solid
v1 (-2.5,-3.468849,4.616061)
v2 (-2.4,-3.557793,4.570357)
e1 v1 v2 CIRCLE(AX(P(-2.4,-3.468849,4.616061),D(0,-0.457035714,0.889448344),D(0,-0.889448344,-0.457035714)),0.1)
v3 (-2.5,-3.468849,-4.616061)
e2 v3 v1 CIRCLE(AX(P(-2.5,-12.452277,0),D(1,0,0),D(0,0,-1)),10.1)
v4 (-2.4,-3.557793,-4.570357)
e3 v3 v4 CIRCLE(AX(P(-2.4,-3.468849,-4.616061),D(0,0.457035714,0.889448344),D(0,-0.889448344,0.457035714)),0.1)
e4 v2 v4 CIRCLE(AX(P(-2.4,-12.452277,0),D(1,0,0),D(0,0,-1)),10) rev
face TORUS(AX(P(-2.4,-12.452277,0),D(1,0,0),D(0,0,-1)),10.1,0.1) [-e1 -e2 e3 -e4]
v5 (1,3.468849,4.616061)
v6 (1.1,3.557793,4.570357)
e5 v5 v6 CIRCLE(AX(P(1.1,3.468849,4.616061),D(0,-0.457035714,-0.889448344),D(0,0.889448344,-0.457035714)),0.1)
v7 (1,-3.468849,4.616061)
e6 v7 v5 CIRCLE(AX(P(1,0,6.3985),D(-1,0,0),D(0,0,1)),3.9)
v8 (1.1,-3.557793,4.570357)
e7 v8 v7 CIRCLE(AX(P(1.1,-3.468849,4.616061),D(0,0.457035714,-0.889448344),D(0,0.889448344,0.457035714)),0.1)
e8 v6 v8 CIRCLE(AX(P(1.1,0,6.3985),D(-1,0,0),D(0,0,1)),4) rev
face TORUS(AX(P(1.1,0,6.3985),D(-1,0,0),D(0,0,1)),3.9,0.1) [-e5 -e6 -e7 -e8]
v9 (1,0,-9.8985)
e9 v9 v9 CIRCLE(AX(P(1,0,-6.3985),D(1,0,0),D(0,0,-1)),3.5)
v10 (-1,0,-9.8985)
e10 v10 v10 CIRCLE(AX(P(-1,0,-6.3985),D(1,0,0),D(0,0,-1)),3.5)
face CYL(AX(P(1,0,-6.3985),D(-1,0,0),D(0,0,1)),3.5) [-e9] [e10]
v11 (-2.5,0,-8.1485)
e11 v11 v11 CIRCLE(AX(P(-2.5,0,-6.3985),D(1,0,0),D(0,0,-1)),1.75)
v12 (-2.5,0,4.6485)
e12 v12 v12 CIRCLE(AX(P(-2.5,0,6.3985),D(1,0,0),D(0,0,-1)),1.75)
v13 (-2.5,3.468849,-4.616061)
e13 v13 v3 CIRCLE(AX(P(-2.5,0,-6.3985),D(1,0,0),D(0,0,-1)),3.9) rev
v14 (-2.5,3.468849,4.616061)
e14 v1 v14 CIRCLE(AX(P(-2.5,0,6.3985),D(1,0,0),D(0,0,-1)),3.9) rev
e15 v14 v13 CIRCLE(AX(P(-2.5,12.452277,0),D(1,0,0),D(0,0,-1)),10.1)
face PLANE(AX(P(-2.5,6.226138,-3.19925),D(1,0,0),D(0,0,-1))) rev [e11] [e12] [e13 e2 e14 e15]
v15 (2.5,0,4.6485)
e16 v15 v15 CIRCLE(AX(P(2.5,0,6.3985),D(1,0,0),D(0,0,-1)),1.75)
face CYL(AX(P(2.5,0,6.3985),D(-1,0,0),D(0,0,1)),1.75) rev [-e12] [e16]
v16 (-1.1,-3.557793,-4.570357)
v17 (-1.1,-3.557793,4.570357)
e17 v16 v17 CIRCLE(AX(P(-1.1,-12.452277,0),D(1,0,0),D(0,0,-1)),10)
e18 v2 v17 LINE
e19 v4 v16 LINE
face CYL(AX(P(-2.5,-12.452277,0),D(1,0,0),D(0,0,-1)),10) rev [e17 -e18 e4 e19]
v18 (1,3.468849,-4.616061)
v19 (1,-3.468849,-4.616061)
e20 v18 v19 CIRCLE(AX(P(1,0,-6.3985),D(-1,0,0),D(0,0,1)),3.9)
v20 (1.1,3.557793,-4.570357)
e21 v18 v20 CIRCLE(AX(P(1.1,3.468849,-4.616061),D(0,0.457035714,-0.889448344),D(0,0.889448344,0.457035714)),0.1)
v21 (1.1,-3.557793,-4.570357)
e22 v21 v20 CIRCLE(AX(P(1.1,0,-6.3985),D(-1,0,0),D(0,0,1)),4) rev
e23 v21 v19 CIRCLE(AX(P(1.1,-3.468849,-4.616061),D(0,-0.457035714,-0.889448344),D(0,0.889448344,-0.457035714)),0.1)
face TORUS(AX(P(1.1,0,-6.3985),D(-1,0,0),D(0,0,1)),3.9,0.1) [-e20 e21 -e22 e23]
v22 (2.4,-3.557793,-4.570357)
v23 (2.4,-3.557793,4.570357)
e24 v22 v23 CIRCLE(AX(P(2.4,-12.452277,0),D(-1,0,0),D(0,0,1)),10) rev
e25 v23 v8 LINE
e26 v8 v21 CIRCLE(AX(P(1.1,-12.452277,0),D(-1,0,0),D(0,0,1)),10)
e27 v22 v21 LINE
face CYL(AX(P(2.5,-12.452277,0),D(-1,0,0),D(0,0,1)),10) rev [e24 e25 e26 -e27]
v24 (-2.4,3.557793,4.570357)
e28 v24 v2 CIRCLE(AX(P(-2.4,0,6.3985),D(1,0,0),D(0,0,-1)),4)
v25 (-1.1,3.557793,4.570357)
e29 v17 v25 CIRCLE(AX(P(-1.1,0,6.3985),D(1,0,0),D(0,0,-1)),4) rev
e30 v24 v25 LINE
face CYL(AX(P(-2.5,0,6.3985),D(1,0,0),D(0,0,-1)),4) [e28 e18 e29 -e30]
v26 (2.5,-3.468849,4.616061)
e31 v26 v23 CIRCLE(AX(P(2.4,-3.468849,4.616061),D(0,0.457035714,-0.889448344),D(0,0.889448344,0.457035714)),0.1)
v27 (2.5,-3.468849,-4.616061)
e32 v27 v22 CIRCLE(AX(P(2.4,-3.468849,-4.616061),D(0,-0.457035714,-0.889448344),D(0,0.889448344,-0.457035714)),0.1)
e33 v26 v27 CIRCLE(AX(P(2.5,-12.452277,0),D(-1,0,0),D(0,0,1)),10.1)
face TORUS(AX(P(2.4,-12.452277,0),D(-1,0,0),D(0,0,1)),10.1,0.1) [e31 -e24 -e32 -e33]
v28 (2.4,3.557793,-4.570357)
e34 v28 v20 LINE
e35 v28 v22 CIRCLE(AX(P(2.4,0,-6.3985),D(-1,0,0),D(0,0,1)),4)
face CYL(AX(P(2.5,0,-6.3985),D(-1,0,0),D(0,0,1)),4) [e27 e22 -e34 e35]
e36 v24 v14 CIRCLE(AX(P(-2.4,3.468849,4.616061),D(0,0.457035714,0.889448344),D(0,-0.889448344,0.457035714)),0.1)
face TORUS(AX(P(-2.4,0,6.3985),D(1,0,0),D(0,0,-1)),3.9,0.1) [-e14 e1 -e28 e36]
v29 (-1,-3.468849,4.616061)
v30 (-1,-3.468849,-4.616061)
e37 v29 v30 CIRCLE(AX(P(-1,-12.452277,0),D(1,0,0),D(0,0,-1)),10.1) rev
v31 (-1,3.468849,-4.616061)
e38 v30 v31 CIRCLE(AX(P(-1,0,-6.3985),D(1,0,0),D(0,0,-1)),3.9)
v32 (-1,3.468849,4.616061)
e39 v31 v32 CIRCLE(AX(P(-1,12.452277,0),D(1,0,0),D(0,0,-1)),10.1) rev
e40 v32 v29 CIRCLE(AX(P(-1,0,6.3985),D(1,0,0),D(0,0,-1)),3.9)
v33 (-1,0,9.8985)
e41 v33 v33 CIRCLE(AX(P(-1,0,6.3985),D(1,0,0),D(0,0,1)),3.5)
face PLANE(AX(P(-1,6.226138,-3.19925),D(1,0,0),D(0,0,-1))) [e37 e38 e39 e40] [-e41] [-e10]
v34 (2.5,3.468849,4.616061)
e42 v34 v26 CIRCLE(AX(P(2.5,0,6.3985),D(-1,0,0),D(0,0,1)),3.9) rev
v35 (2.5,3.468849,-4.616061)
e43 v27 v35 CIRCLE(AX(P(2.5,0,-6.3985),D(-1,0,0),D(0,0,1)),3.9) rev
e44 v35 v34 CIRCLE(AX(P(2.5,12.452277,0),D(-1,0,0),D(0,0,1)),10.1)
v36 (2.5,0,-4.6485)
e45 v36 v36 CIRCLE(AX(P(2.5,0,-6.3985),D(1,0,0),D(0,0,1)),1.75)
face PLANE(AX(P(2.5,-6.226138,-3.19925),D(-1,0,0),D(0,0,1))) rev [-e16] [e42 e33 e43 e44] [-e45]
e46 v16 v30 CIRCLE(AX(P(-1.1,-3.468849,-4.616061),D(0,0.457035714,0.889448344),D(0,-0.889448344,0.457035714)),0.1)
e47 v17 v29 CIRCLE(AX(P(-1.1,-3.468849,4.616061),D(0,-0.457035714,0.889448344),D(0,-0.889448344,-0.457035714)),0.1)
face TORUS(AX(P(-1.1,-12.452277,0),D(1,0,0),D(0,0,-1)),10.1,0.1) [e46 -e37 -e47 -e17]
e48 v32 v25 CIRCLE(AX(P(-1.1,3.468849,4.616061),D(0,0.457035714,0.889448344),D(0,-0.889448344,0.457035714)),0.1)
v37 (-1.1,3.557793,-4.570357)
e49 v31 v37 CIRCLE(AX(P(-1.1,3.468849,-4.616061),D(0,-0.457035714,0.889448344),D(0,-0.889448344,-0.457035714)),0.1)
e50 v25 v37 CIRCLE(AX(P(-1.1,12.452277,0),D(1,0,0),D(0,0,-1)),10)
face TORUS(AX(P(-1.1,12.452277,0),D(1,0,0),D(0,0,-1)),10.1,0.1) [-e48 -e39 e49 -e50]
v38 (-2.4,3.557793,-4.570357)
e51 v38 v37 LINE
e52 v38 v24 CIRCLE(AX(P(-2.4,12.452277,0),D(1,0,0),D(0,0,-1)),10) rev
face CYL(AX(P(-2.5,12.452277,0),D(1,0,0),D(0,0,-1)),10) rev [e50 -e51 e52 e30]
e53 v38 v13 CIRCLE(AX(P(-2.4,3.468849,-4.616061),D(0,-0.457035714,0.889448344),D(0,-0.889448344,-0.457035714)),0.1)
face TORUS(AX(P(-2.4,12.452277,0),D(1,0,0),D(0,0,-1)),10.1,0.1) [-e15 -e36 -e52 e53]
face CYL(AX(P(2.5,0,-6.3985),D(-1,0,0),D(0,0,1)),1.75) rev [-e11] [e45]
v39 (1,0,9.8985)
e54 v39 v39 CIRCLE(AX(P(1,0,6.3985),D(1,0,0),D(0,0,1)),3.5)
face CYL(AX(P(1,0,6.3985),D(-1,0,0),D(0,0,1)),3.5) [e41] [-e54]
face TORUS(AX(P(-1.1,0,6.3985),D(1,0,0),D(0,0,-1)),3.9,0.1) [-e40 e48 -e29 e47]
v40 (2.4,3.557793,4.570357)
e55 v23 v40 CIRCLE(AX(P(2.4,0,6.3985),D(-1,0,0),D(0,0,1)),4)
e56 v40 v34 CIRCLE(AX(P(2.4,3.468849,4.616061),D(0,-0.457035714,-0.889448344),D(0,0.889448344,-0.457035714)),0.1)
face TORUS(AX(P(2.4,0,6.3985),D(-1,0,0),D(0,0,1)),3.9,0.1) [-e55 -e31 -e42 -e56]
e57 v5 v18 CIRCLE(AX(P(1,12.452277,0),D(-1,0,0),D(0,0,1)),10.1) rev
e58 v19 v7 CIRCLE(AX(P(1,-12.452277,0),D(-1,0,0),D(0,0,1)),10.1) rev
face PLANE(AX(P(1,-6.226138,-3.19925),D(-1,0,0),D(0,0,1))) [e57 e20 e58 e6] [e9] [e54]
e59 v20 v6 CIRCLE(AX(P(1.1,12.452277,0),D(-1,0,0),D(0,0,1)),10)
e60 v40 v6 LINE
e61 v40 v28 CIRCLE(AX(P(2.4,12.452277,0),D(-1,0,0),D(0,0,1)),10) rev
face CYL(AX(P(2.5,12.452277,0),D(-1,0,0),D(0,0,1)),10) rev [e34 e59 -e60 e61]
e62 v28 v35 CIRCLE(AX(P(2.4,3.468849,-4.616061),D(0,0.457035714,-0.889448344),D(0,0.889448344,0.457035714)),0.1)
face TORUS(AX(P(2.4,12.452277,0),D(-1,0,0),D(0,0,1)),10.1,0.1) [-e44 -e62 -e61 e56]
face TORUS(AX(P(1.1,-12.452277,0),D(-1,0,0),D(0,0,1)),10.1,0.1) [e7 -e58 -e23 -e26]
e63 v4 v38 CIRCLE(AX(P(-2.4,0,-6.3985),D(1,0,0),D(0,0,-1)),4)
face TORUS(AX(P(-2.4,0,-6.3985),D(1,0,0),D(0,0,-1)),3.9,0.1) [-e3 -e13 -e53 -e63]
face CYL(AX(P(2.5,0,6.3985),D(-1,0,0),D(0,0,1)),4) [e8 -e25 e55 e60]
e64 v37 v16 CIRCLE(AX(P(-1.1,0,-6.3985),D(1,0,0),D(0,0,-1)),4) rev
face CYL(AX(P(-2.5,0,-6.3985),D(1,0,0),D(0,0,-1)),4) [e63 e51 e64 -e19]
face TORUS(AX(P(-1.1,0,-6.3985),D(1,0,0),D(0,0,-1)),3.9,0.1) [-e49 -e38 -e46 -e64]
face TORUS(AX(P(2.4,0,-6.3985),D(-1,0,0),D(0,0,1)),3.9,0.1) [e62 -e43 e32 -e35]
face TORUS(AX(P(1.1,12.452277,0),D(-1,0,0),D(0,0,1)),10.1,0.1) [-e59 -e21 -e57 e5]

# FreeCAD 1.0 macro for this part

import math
import FreeCAD as App
import Part
import Sketcher
Q = App.Units.Quantity


def edges_at(feature, points):
    """Names of the edges that pass closest to the given points."""
    edges = feature.Shape.Edges
    near = lambda p: min(range(len(edges)), key=lambda i: edges[i].distToShape(Part.Vertex(*p))[0])
    return sorted({f"Edge{near(p) + 1}" for p in points})

doc = App.newDocument("Part")
body = doc.addObject("PartDesign::Body", "Body")

# Sketch on YZ plane
sketch1 = body.newObject("Sketcher::SketchObject", "Sketch")
sketch1.AttachmentSupport = (doc.getObject("YZ_Plane"), [""])
sketch1.MapMode = "FlatFace"
sketch1.AttachmentOffset = App.Placement(App.Vector(0, 0, 1), App.Rotation())
sketch1.addGeometry(Part.ArcOfCircle(Part.Circle(App.Vector(0, 6.4, 0), App.Vector(0, 0, 1), 4), math.radians(-27), math.radians(207)), False)
sketch1.addGeometry(Part.ArcOfCircle(Part.Circle(App.Vector(-12.5, 0, 0), App.Vector(0, 0, 1), 10), math.radians(-27), math.radians(27)), False)
sketch1.addGeometry(Part.ArcOfCircle(Part.Circle(App.Vector(0, -6.4, 0), App.Vector(0, 0, 1), 4), math.radians(153), math.radians(387)), False)
sketch1.addGeometry(Part.ArcOfCircle(Part.Circle(App.Vector(12.5, 0, 0), App.Vector(0, 0, 1), 10), math.radians(153), math.radians(207)), False)
sketch1.addGeometry(Part.Circle(App.Vector(0, 6.4, 0), App.Vector(0, 0, 1), 1.8), False)
sketch1.addGeometry(Part.Circle(App.Vector(0, -6.4, 0), App.Vector(0, 0, 1), 1.8), False)
sketch1.addConstraint(Sketcher.Constraint("Tangent", 0, 2, 1, 2))
sketch1.addConstraint(Sketcher.Constraint("Tangent", 1, 1, 2, 1))
sketch1.addConstraint(Sketcher.Constraint("Tangent", 2, 2, 3, 2))
sketch1.addConstraint(Sketcher.Constraint("Tangent", 3, 1, 0, 1))
sketch1.addConstraint(Sketcher.Constraint("Coincident", 4, 3, 0, 3))
sketch1.addConstraint(Sketcher.Constraint("Coincident", 5, 3, 2, 3))
sketch1.addConstraint(Sketcher.Constraint("Equal", 0, 2))
sketch1.addConstraint(Sketcher.Constraint("Equal", 1, 3))
sketch1.addConstraint(Sketcher.Constraint("Equal", 4, 5))
sketch1.addConstraint(Sketcher.Constraint("Symmetric", 0, 3, 2, 3, -1, 1))
sketch1.addConstraint(Sketcher.Constraint("PointOnObject", 0, 3, -2))
sketch1.addConstraint(Sketcher.Constraint("Radius", 0, Q("4 mm")))
sketch1.addConstraint(Sketcher.Constraint("Radius", 1, Q("10 mm")))
sketch1.addConstraint(Sketcher.Constraint("Diameter", 4, Q("3.5 mm")))
sketch1.addConstraint(Sketcher.Constraint("DistanceY", 2, 3, 0, 3, Q("12.797 mm")))
pad1 = body.newObject("PartDesign::Pad", "Pad")
pad1.Profile = sketch1
pad1.Length = 1.5
body2 = doc.addObject("PartDesign::Body", "Body001")

# Sketch on YZ plane
sketch2 = body2.newObject("Sketcher::SketchObject", "Sketch001")
sketch2.AttachmentSupport = (doc.getObject("YZ_Plane001"), [""])
sketch2.MapMode = "FlatFace"
sketch2.AttachmentOffset = App.Placement(App.Vector(0, 0, -1), App.Rotation())
sketch2.addGeometry(Part.ArcOfCircle(Part.Circle(App.Vector(-12.5, 0, 0), App.Vector(0, 0, 1), 10), math.radians(-27), math.radians(27)), False)
sketch2.addGeometry(Part.ArcOfCircle(Part.Circle(App.Vector(0, -6.4, 0), App.Vector(0, 0, 1), 4), math.radians(153), math.radians(387)), False)
sketch2.addGeometry(Part.ArcOfCircle(Part.Circle(App.Vector(12.5, 0, 0), App.Vector(0, 0, 1), 10), math.radians(153), math.radians(207)), False)
sketch2.addGeometry(Part.ArcOfCircle(Part.Circle(App.Vector(0, 6.4, 0), App.Vector(0, 0, 1), 4), math.radians(-27), math.radians(207)), False)
sketch2.addGeometry(Part.Circle(App.Vector(0, -6.4, 0), App.Vector(0, 0, 1), 1.8), False)
sketch2.addGeometry(Part.Circle(App.Vector(0, 6.4, 0), App.Vector(0, 0, 1), 1.8), False)
sketch2.addConstraint(Sketcher.Constraint("Tangent", 0, 1, 1, 1))
sketch2.addConstraint(Sketcher.Constraint("Tangent", 1, 2, 2, 2))
sketch2.addConstraint(Sketcher.Constraint("Tangent", 2, 1, 3, 1))
sketch2.addConstraint(Sketcher.Constraint("Tangent", 3, 2, 0, 2))
sketch2.addConstraint(Sketcher.Constraint("Coincident", 4, 3, 1, 3))
sketch2.addConstraint(Sketcher.Constraint("Coincident", 5, 3, 3, 3))
sketch2.addConstraint(Sketcher.Constraint("Equal", 0, 2))
sketch2.addConstraint(Sketcher.Constraint("Equal", 1, 3))
sketch2.addConstraint(Sketcher.Constraint("Equal", 4, 5))
sketch2.addConstraint(Sketcher.Constraint("Symmetric", 0, 3, 2, 3, -1, 1))
sketch2.addConstraint(Sketcher.Constraint("PointOnObject", 0, 3, -1))
sketch2.addConstraint(Sketcher.Constraint("Radius", 0, Q("10 mm")))
sketch2.addConstraint(Sketcher.Constraint("Radius", 1, Q("4 mm")))
sketch2.addConstraint(Sketcher.Constraint("Diameter", 4, Q("3.5 mm")))
sketch2.addConstraint(Sketcher.Constraint("DistanceY", 1, 3, 3, 3, Q("12.797 mm")))
pad2 = body2.newObject("PartDesign::Pad", "Pad001")
pad2.Profile = sketch2
pad2.Length = 1.5
pad2.Reversed = True
body.AllowCompound = True
doc.recompute()

boolean = body.newObject("PartDesign::Boolean", "Boolean")
boolean.Type = "Fuse"
boolean.addObjects([body2])

# Sketch on YZ plane
sketch3 = body.newObject("Sketcher::SketchObject", "Sketch002")
sketch3.AttachmentSupport = (doc.getObject("YZ_Plane"), [""])
sketch3.MapMode = "FlatFace"
sketch3.addGeometry(Part.Circle(App.Vector(0, -6.4, 0), App.Vector(0, 0, 1), 3.5), False)
sketch3.addGeometry(Part.Circle(App.Vector(0, -6.4, 0), App.Vector(0, 0, 1), 1.8), False)
sketch3.addGeometry(Part.Circle(App.Vector(0, 6.4, 0), App.Vector(0, 0, 1), 3.5), False)
sketch3.addGeometry(Part.Circle(App.Vector(0, 6.4, 0), App.Vector(0, 0, 1), 1.8), False)
sketch3.addConstraint(Sketcher.Constraint("Coincident", 1, 3, 0, 3))
sketch3.addConstraint(Sketcher.Constraint("Coincident", 3, 3, 2, 3))
sketch3.addConstraint(Sketcher.Constraint("Equal", 0, 2))
sketch3.addConstraint(Sketcher.Constraint("Equal", 1, 3))
sketch3.addConstraint(Sketcher.Constraint("Symmetric", 0, 3, 2, 3, -1, 1))
sketch3.addConstraint(Sketcher.Constraint("PointOnObject", 0, 3, -2))
sketch3.addConstraint(Sketcher.Constraint("Diameter", 0, Q("7 mm")))
sketch3.addConstraint(Sketcher.Constraint("Diameter", 1, Q("3.5 mm")))
sketch3.addConstraint(Sketcher.Constraint("DistanceY", 0, 3, 2, 3, Q("12.797 mm")))
pad3 = body.newObject("PartDesign::Pad", "Pad002")
pad3.Profile = sketch3
pad3.Length = 2
pad3.Midplane = True
doc.recompute()

fillet = body.newObject("PartDesign::Fillet", "Fillet")
fillet.Base = (pad3, edges_at(pad3, [
    (2.5, 2.452, 0),
    (2.5, 0, 10.399),
    (-2.5, 0, -10.399),
    (-2.5, -2.452, 0),
    (-2.5, 0, 10.399),
    (-2.5, 2.452, 0),
    (-1, 0, -10.399),
    (-1, 2.452, 0),
    (-1, 0, 10.399),
    (-1, -2.452, 0),
    (2.5, -2.452, 0),
    (1, 0, 10.399),
    (1, 2.452, 0),
    (1, 0, -10.399),
    (1, -2.452, 0),
    (2.5, 0, -10.399),
]))
fillet.Radius = 0.1

doc.recompute()
